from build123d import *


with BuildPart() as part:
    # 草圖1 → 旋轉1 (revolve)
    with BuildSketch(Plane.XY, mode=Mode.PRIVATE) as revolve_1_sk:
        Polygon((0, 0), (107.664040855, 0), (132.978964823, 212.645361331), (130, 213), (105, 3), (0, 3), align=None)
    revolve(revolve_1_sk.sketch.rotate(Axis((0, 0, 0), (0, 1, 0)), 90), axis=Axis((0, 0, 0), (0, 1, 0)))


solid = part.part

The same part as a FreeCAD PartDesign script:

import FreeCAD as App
import Part
import Sketcher
from FreeCAD import Vector

doc = App.newDocument("Part")
params = doc.addObject("Spreadsheet::Sheet", "Params")
for row, (alias, value) in enumerate([
    ("sketch1_width", "105 mm"),
    ("sketch1_height", "3 mm"),
    ("sketch1_length", "3 mm"),
    ("revolution_angle", "360 deg"),
], start=1):
    params.set(f"A{row}", alias)
    params.set(f"B{row}", "=" + value)
    params.setAlias(f"B{row}", alias)

body = doc.addObject("PartDesign::Body", "Body")

# Sketch on XY plane
sketch1 = body.newObject("Sketcher::SketchObject", "Sketch")
sketch1.AttachmentSupport = (doc.getObject("XY_Plane"), [""])
sketch1.MapMode = "FlatFace"
sketch1.addGeometry([
    Part.LineSegment(Vector(0, 0, 0), Vector(107.664041, 0, 0)),  # 0
    Part.LineSegment(Vector(107.664041, 0, 0), Vector(132.978965, 212.645361, 0)),  # 1
    Part.LineSegment(Vector(132.978965, 212.645361, 0), Vector(130, 213, 0)),  # 2
    Part.LineSegment(Vector(130, 213, 0), Vector(105, 3, 0)),  # 3
    Part.LineSegment(Vector(105, 3, 0), Vector(0, 3, 0)),  # 4
    Part.LineSegment(Vector(0, 3, 0), Vector(0, 0, 0)),  # 5
], False)
sketch1.addConstraint([
    Sketcher.Constraint("Coincident", 0, 2, 1, 1),
    Sketcher.Constraint("Coincident", 1, 2, 2, 1),
    Sketcher.Constraint("Coincident", 2, 2, 3, 1),
    Sketcher.Constraint("Coincident", 3, 2, 4, 1),
    Sketcher.Constraint("Coincident", 4, 2, 5, 1),
    Sketcher.Constraint("Coincident", 5, 2, 0, 1),
    Sketcher.Constraint("Horizontal", 0),
    Sketcher.Constraint("Horizontal", 4),
    Sketcher.Constraint("Vertical", 5),
    Sketcher.Constraint("Coincident", 5, 2, -1, 1),
    Sketcher.Constraint("Perpendicular", 1, 2),
    Sketcher.Constraint("Perpendicular", 2, 3),
    Sketcher.Constraint("DistanceX", 4, 2, 4, 1, 105.0),
    Sketcher.Constraint("DistanceY", 5, 2, 5, 1, 3.0),
    Sketcher.Constraint("Distance", 2, 3.0),
    Sketcher.Constraint("DistanceX", -1, 1, 2, 2, 130.0),
    Sketcher.Constraint("DistanceY", -1, 1, 2, 2, 213.0),
])
sketch1.setExpression("Constraints[12]", "Params.sketch1_width")
sketch1.setExpression("Constraints[13]", "Params.sketch1_height")
sketch1.setExpression("Constraints[14]", "Params.sketch1_length")
revolution = body.newObject("PartDesign::Revolution", "Revolution")
revolution.Profile = sketch1
revolution.ReferenceAxis = (sketch1, ["V_Axis"])
revolution.setExpression("Angle", "Params.revolution_angle")

doc.recompute()
